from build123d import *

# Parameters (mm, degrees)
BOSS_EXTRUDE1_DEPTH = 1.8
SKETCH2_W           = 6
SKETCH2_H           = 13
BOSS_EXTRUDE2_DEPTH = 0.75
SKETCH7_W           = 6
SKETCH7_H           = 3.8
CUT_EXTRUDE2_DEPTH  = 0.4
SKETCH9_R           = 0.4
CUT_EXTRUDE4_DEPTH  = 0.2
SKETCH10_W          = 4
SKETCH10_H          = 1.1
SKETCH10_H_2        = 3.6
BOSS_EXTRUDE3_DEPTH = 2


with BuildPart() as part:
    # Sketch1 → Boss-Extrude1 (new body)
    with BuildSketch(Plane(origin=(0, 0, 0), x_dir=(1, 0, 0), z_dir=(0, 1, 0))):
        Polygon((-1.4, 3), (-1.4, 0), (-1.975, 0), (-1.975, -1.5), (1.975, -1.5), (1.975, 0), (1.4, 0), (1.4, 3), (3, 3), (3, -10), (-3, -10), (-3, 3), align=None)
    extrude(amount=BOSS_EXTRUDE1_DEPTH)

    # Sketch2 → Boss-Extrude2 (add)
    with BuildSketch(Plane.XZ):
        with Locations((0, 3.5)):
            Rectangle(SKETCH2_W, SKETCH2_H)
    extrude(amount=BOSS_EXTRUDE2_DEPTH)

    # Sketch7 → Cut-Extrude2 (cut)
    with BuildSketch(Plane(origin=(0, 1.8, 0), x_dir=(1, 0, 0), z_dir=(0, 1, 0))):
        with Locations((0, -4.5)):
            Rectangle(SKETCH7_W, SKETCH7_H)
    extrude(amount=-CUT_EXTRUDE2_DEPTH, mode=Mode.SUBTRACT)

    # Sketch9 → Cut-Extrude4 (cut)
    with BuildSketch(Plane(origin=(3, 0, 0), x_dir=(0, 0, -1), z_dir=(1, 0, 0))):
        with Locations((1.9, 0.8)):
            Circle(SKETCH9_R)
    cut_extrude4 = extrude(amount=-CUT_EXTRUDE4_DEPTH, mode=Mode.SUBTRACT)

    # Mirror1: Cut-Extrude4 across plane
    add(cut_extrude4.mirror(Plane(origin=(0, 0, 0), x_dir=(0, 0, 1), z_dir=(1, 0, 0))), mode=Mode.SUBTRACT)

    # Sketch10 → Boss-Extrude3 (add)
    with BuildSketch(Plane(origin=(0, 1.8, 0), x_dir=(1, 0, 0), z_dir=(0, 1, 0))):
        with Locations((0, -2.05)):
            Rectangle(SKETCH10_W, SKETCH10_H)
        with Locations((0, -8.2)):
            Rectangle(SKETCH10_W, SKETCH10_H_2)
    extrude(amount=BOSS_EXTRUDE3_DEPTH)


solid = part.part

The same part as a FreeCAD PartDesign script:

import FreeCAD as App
import Part
import Sketcher
from FreeCAD import Vector
Q = App.Units.Quantity


def add_polygon(sketch, points):
    """Adds a closed chain of lines whose ends are joined by coincident constraints."""
    first, n = sketch.GeometryCount, len(points)
    for a, b in zip(points, points[1:] + points[:1]):
        sketch.addGeometry(Part.LineSegment(App.Vector(*a, 0), App.Vector(*b, 0)), False)
    for i in range(n):
        sketch.addConstraint(Sketcher.Constraint("Coincident", first + i, 2, first + (i + 1) % n, 1))

doc = App.newDocument("Part")
body = doc.addObject("PartDesign::Body", "Body")

sketch1 = body.newObject("Sketcher::SketchObject", "Sketch")
sketch1.AttachmentSupport = (doc.getObject("XZ_Plane"), [""])
sketch1.MapMode = "FlatFace"
add_polygon(sketch1, [(-1.4, 0), (-1.4, -3), (-3, -3), (-3, 10), (3, 10), (3, -3), (1.4, -3), (1.4, 0), (2, 0), (2, 1.5), (-2, 1.5), (-2, 0)])
sketch1.addConstraint([
    Sketcher.Constraint("Vertical", 0),
    Sketcher.Constraint("Horizontal", 1),
    Sketcher.Constraint("Vertical", 2),
    Sketcher.Constraint("Horizontal", 3),
    Sketcher.Constraint("Vertical", 4),
    Sketcher.Constraint("Horizontal", 5),
    Sketcher.Constraint("Vertical", 6),
    Sketcher.Constraint("Horizontal", 7),
    Sketcher.Constraint("Vertical", 8),
    Sketcher.Constraint("Horizontal", 9),
    Sketcher.Constraint("Vertical", 10),
    Sketcher.Constraint("Horizontal", 11),
    Sketcher.Constraint("Symmetric", 7, 2, 10, 2, -1, 1),
    Sketcher.Constraint("Symmetric", 1, 2, 4, 2, -2),
    Sketcher.Constraint("Symmetric", 6, 2, 11, 2, -2),
    Sketcher.Constraint("DistanceX", 3, 1, 3, 2, Q("6 mm")),
    Sketcher.Constraint("DistanceY", 0, 2, 0, 1, Q("3 mm")),
    Sketcher.Constraint("DistanceY", 2, 1, 2, 2, Q("13 mm")),
    Sketcher.Constraint("DistanceX", 1, 2, 1, 1, Q("1.6 mm")),
    Sketcher.Constraint("DistanceY", 8, 1, 8, 2, Q("1.5 mm")),
    Sketcher.Constraint("DistanceX", 9, 2, 9, 1, Q("3.95 mm")),
])
pad1 = body.newObject("PartDesign::Pad", "Pad")
pad1.Profile = sketch1
pad1.Length = 1.8
pad1.Reversed = True

sketch2 = body.newObject("Sketcher::SketchObject", "Sketch001")
sketch2.AttachmentSupport = (doc.getObject("XZ_Plane"), [""])
sketch2.MapMode = "FlatFace"
add_polygon(sketch2, [(-3, 10), (-3, -3), (3, -3), (3, 10)])
sketch2.addConstraint([
    Sketcher.Constraint("Vertical", 0),
    Sketcher.Constraint("Horizontal", 1),
    Sketcher.Constraint("Vertical", 2),
    Sketcher.Constraint("Horizontal", 3),
    Sketcher.Constraint("DistanceX", 1, 1, 1, 2, Q("6 mm")),
    Sketcher.Constraint("DistanceY", 0, 2, 0, 1, Q("13 mm")),
    Sketcher.Constraint("DistanceX", 0, 2, -1, 1, Q("3 mm")),
    Sketcher.Constraint("DistanceY", 0, 2, -1, 1, Q("3 mm")),
])
pad2 = body.newObject("PartDesign::Pad", "Pad001")
pad2.Profile = sketch2
pad2.Length = 0.75

sketch3 = body.newObject("Sketcher::SketchObject", "Sketch002")
sketch3.AttachmentSupport = (doc.getObject("XZ_Plane"), [""])
sketch3.MapMode = "FlatFace"
sketch3.AttachmentOffset = App.Placement(Vector(0, 0, -1.8), App.Rotation())
add_polygon(sketch3, [(-3, 2.6), (-3, 6.4), (3, 6.4), (3, 2.6)])
sketch3.addConstraint([
    Sketcher.Constraint("Vertical", 0),
    Sketcher.Constraint("Horizontal", 1),
    Sketcher.Constraint("Vertical", 2),
    Sketcher.Constraint("Horizontal", 3),
    Sketcher.Constraint("DistanceX", 1, 1, 1, 2, Q("6 mm")),
    Sketcher.Constraint("DistanceY", 0, 1, 0, 2, Q("3.8 mm")),
    Sketcher.Constraint("DistanceX", 0, 2, -1, 1, Q("3 mm")),
    Sketcher.Constraint("DistanceY", -1, 1, 0, 2, Q("6.4 mm")),
])
pocket1 = body.newObject("PartDesign::Pocket", "Pocket")
pocket1.Profile = sketch3
pocket1.Length = 0.4
pocket1.Reversed = True

sketch4 = body.newObject("Sketcher::SketchObject", "Sketch003")
sketch4.AttachmentSupport = (doc.getObject("YZ_Plane"), [""])
sketch4.MapMode = "FlatFace"
sketch4.AttachmentOffset = App.Placement(Vector(0, 0, 3), App.Rotation())
sketch4.addGeometry(Part.Circle(Vector(0.8, -1.9, 0), Vector(0, 0, 1), 0.4), False)
sketch4.addConstraint([
    Sketcher.Constraint("Diameter", 0, Q("0.8 mm")),
    Sketcher.Constraint("DistanceX", -1, 1, 0, 3, Q("0.8 mm")),
    Sketcher.Constraint("DistanceY", 0, 3, -1, 1, Q("1.9 mm")),
])
pocket2 = body.newObject("PartDesign::Pocket", "Pocket001")
pocket2.Profile = sketch4
pocket2.Length = 0.2
doc.recompute()

mirrored = body.newObject("PartDesign::Mirrored", "Mirrored")
mirrored.Originals = [pocket2]
mirrored.MirrorPlane = (doc.getObject("YZ_Plane"), [""])
body.Tip = mirrored

sketch5 = body.newObject("Sketcher::SketchObject", "Sketch004")
sketch5.AttachmentSupport = (doc.getObject("XZ_Plane"), [""])
sketch5.MapMode = "FlatFace"
sketch5.AttachmentOffset = App.Placement(Vector(0, 0, -1.8), App.Rotation())
add_polygon(sketch5, [(-2, 1.5), (-2, 2.6), (2, 2.6), (2, 1.5)])
add_polygon(sketch5, [(-2, 6.4), (-2, 10), (2, 10), (2, 6.4)])
sketch5.addConstraint([
    Sketcher.Constraint("Vertical", 0),
    Sketcher.Constraint("Horizontal", 1),
    Sketcher.Constraint("Vertical", 2),
    Sketcher.Constraint("Horizontal", 3),
    Sketcher.Constraint("Vertical", 4),
    Sketcher.Constraint("Horizontal", 5),
    Sketcher.Constraint("Vertical", 6),
    Sketcher.Constraint("Horizontal", 7),
    Sketcher.Constraint("Vertical", 3, 2, 4, 2),
    Sketcher.Constraint("Vertical", 2, 2, 5, 2),
    Sketcher.Constraint("DistanceX", 1, 1, 1, 2, Q("4 mm")),
    Sketcher.Constraint("DistanceY", 0, 1, 0, 2, Q("1.1 mm")),
    Sketcher.Constraint("DistanceY", 4, 1, 4, 2, Q("3.6 mm")),
    Sketcher.Constraint("DistanceX", 0, 2, -1, 1, Q("2 mm")),
    Sketcher.Constraint("DistanceY", -1, 1, 4, 2, Q("10 mm")),
    Sketcher.Constraint("DistanceY", -1, 1, 0, 2, Q("2.6 mm")),
])
pad3 = body.newObject("PartDesign::Pad", "Pad002")
pad3.Profile = sketch5
pad3.Length = 2
pad3.Reversed = True

doc.recompute()
